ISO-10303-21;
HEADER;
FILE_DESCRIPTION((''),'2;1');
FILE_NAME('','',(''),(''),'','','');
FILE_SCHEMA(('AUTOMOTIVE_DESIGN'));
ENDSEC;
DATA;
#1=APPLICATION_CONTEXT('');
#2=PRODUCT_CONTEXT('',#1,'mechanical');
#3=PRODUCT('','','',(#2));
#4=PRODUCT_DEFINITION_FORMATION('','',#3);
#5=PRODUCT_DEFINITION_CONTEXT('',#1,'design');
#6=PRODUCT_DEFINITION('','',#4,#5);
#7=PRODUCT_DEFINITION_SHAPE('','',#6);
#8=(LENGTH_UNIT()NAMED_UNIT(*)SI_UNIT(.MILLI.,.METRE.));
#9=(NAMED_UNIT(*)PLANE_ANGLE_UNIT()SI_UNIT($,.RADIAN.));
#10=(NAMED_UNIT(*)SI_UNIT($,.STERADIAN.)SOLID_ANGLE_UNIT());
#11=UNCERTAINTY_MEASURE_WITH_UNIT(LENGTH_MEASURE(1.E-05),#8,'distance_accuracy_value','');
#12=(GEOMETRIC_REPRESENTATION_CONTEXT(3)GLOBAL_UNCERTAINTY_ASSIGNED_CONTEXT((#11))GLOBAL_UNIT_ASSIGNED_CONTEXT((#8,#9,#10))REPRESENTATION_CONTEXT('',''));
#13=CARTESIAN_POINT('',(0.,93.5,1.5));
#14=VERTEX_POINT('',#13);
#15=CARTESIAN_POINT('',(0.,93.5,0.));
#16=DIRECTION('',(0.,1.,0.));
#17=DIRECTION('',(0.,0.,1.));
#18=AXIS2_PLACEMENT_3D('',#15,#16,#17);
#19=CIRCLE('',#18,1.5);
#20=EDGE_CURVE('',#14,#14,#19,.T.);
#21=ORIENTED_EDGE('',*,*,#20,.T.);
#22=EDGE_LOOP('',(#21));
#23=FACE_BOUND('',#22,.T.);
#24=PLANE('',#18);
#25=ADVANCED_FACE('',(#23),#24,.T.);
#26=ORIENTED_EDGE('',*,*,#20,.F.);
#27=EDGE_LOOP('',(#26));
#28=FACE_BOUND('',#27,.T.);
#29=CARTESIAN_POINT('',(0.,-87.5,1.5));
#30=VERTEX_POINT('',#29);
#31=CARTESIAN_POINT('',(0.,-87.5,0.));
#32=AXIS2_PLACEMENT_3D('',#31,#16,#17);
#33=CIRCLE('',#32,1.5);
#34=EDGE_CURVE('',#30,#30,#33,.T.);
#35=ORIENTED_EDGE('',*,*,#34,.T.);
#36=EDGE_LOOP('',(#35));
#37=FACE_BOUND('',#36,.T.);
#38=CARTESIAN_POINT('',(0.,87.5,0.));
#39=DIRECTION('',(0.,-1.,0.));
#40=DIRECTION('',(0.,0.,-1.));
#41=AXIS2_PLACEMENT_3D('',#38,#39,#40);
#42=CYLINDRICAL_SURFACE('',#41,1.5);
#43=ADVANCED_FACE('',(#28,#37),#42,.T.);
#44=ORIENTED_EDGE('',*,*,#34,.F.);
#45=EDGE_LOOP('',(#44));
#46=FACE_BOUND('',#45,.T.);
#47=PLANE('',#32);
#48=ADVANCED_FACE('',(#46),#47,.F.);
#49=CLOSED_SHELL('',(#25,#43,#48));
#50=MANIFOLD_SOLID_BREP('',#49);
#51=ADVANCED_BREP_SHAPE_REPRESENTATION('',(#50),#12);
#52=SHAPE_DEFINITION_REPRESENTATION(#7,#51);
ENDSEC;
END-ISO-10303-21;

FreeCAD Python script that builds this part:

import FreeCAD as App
import Part
import Sketcher

doc = App.newDocument("Part")
body = doc.addObject("PartDesign::Body", "Body")

sketch1 = body.newObject("Sketcher::SketchObject", "Sketch")
sketch1.AttachmentSupport = (doc.getObject("XZ_Plane"), [""])
sketch1.MapMode = "FlatFace"
sketch1.addGeometry(Part.Circle(App.Vector(0, 0, 0), App.Vector(0, 0, 1), 1.5), False)
sketch1.addConstraint([
    Sketcher.Constraint("Coincident", 0, 3, -1, 1),
    Sketcher.Constraint("Diameter", 0, 3.0),
])
pad1 = body.newObject("PartDesign::Pad", "Pad")
pad1.Profile = sketch1
pad1.Length = 175
pad1.Midplane = True

sketch2 = body.newObject("Sketcher::SketchObject", "Sketch001")
sketch2.AttachmentSupport = (doc.getObject("XZ_Plane"), [""])
sketch2.MapMode = "FlatFace"
sketch2.AttachmentOffset = App.Placement(App.Vector(0, 0, -93.5), App.Rotation())
sketch2.addGeometry(Part.Circle(App.Vector(0, 0, 0), App.Vector(0, 0, 1), 1.5), False)
sketch2.addConstraint([
    Sketcher.Constraint("Coincident", 0, 3, -1, 1),
    Sketcher.Constraint("Diameter", 0, 3.0),
])
pad2 = body.newObject("PartDesign::Pad", "Pad001")
pad2.Profile = sketch2
pad2.Length = 6

doc.recompute()
